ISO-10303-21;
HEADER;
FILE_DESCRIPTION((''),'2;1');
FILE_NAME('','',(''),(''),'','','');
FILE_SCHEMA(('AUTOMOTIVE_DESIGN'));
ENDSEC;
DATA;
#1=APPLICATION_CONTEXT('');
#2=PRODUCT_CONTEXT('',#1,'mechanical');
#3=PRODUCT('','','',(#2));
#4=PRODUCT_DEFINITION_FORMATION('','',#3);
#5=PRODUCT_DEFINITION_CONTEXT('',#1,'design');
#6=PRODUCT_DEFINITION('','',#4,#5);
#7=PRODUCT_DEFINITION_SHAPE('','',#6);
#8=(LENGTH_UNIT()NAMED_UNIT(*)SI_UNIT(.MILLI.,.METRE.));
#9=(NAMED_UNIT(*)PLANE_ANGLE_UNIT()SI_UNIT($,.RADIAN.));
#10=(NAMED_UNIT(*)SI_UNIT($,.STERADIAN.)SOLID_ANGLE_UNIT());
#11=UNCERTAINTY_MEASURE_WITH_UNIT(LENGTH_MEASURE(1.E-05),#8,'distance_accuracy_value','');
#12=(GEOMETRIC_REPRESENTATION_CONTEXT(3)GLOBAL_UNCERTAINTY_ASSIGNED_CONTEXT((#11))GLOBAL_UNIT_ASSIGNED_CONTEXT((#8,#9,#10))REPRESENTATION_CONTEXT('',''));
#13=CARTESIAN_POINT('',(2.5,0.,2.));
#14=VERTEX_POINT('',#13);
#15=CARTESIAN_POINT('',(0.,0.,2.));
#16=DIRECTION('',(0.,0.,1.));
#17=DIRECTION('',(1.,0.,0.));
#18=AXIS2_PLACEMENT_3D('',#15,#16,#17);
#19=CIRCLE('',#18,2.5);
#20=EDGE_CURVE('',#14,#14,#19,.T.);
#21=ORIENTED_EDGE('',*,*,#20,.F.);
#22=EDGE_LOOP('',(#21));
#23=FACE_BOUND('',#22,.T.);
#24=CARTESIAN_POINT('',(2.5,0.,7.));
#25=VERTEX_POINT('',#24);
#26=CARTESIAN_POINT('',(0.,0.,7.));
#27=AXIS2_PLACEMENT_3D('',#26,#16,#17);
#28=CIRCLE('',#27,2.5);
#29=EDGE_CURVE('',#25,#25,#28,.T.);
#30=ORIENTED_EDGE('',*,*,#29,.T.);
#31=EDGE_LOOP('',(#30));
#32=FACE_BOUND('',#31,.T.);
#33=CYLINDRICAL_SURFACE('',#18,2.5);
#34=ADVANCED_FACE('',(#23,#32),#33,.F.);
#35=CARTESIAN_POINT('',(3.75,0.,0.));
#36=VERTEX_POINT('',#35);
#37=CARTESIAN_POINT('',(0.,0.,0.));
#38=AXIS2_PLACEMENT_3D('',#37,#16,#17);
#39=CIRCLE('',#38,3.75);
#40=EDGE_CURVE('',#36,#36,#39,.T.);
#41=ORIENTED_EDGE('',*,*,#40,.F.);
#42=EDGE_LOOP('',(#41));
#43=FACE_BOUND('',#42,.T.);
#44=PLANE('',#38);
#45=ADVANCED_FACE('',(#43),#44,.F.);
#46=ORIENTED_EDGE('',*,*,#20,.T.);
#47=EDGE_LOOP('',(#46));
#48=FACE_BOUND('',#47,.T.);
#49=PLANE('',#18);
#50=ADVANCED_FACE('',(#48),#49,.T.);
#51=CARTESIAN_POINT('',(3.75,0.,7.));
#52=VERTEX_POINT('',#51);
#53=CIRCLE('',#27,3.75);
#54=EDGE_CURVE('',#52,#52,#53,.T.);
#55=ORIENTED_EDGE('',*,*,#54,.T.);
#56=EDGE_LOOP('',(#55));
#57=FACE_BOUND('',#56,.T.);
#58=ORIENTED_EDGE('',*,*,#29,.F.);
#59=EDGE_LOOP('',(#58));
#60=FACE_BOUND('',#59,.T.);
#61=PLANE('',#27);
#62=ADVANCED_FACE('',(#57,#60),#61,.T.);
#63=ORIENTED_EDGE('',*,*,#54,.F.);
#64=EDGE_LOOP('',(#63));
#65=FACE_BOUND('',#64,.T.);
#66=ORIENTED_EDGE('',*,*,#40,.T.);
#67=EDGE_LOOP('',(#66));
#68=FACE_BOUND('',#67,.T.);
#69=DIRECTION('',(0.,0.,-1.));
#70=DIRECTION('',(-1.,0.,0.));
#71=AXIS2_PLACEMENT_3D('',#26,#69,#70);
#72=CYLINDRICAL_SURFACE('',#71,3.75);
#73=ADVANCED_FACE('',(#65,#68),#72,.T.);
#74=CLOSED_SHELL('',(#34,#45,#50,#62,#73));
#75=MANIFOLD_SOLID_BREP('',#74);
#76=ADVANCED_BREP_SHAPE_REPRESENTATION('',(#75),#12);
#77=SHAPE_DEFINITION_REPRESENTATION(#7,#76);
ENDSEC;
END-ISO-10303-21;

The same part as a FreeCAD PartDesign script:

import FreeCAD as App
import Part
import Sketcher

V = App.Vector

doc = App.newDocument("Part")
params = doc.addObject("Spreadsheet::Sheet", "Params")
for row, (alias, value) in enumerate([
    ("sketch1_diameter", "7.5 mm"),
    ("pad1_length", "7 mm"),
    ("sketch2_diameter", "5 mm"),
    ("pocket1_length", "5 mm"),
], start=1):
    params.set(f"A{row}", alias)
    params.set(f"B{row}", "=" + value)
    params.setAlias(f"B{row}", alias)

body = doc.addObject("PartDesign::Body", "Body")

# Sketch on XY plane
sketch1 = body.newObject("Sketcher::SketchObject", "Sketch")
sketch1.AttachmentSupport = (doc.getObject("XY_Plane"), [""])
sketch1.MapMode = "FlatFace"
sketch1.addGeometry(Part.Circle(V(0, 0, 0), V(0, 0, 1), 3.8), False)
sketch1.addConstraint([
    Sketcher.Constraint("Coincident", 0, 3, -1, 1),
    Sketcher.Constraint("Diameter", 0, 7.5),
])
sketch1.setExpression("Constraints[1]", "Params.sketch1_diameter")
pad1 = body.newObject("PartDesign::Pad", "Pad")
pad1.Profile = sketch1
pad1.setExpression("Length", "Params.pad1_length")

# Sketch on XY plane
sketch2 = body.newObject("Sketcher::SketchObject", "Sketch001")
sketch2.AttachmentSupport = (doc.getObject("XY_Plane"), [""])
sketch2.MapMode = "FlatFace"
sketch2.AttachmentOffset = App.Placement(V(0, 0, 7), App.Rotation())
sketch2.addGeometry(Part.Circle(V(0, 0, 0), V(0, 0, 1), 2.5), False)
sketch2.addConstraint([
    Sketcher.Constraint("Coincident", 0, 3, -1, 1),
    Sketcher.Constraint("Diameter", 0, 5.0),
])
sketch2.setExpression("Constraints[1]", "Params.sketch2_diameter")
pocket1 = body.newObject("PartDesign::Pocket", "Pocket")
pocket1.Profile = sketch2
pocket1.setExpression("Length", "Params.pocket1_length")

doc.recompute()
